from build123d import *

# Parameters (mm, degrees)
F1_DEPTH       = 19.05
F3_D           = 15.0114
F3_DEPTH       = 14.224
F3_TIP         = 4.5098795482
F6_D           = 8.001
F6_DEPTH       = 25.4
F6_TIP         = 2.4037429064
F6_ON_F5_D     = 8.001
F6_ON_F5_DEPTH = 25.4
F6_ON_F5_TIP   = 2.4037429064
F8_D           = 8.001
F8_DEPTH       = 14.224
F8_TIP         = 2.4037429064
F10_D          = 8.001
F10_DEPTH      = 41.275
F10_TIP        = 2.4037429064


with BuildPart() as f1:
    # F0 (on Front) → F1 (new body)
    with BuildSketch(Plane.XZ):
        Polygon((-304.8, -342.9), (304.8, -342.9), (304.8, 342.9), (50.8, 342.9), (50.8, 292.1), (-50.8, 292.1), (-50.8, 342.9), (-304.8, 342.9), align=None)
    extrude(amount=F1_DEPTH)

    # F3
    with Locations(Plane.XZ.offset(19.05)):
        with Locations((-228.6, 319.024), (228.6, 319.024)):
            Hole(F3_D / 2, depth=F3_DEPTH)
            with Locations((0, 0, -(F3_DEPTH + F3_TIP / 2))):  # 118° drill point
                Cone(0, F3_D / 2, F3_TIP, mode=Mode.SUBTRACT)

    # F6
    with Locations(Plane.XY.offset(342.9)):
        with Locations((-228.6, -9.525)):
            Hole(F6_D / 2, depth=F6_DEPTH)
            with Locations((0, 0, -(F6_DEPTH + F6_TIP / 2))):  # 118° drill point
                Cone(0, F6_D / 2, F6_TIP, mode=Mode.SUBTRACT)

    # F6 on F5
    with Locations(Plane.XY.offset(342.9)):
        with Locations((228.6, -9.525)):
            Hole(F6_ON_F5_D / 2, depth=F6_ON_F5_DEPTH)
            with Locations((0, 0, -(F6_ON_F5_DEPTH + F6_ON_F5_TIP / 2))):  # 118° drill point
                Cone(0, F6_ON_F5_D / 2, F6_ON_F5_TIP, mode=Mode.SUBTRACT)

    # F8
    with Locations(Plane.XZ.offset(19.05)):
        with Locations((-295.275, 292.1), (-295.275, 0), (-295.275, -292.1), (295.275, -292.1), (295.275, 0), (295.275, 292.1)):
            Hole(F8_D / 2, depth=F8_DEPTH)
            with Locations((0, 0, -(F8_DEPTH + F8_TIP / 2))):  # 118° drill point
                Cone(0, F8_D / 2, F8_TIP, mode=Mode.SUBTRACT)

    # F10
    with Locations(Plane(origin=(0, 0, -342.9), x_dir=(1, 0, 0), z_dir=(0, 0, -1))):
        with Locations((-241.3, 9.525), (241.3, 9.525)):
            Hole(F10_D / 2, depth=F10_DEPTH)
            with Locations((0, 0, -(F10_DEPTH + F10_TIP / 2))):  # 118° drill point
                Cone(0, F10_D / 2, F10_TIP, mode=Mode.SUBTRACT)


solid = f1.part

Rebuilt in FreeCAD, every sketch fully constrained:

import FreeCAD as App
import Part
import Sketcher
from FreeCAD import Vector
Q = App.Units.Quantity


def add_polygon(sketch, points):
    """Adds a closed chain of lines whose ends are joined by coincident constraints."""
    first, n = sketch.GeometryCount, len(points)
    for a, b in zip(points, points[1:] + points[:1]):
        sketch.addGeometry(Part.LineSegment(App.Vector(*a, 0), App.Vector(*b, 0)), False)
    for i in range(n):
        sketch.addConstraint(Sketcher.Constraint("Coincident", first + i, 2, first + (i + 1) % n, 1))

doc = App.newDocument("Part")
body = doc.addObject("PartDesign::Body", "Body")

sketch1 = doc.addObject("Sketcher::SketchObject", "Sketch")
body.addObject(sketch1)
sketch1.AttachmentSupport = (doc.XZ_Plane, [""])
sketch1.MapMode = "FlatFace"
add_polygon(sketch1, [(-305, -343), (305, -343), (305, 343), (51, 343), (51, 292), (-51, 292), (-51, 343), (-305, 343)])
sketch1.addConstraint([
    Sketcher.Constraint("Horizontal", 0),
    Sketcher.Constraint("Vertical", 1),
    Sketcher.Constraint("Horizontal", 2),
    Sketcher.Constraint("Vertical", 3),
    Sketcher.Constraint("Horizontal", 4),
    Sketcher.Constraint("Vertical", 5),
    Sketcher.Constraint("Horizontal", 6),
    Sketcher.Constraint("Vertical", 7),
    Sketcher.Constraint("Symmetric", 0, 2, 6, 2, -1, 1),
    Sketcher.Constraint("Symmetric", 2, 2, 5, 2, -2),
    Sketcher.Constraint("DistanceX", 0, 1, 0, 2, Q("24 in")),
    Sketcher.Constraint("DistanceX", 2, 2, 2, 1, Q("10 in")),
    Sketcher.Constraint("DistanceY", 1, 1, 1, 2, Q("27 in")),
    Sketcher.Constraint("DistanceY", 3, 2, 3, 1, Q("2 in")),
])
pad1 = doc.addObject("PartDesign::Pad", "Pad")
body.addObject(pad1)
pad1.Profile = sketch1
pad1.Length = Q("0.75 in")

sketch2 = doc.addObject("Sketcher::SketchObject", "Sketch001")
body.addObject(sketch2)
sketch2.AttachmentSupport = (doc.XZ_Plane, [""])
sketch2.MapMode = "FlatFace"
sketch2.AttachmentOffset = App.Placement(Vector(0, 0, 0.75 * 25.4), App.Rotation())
sketch2.addGeometry([
    Part.Circle(Vector(-229, 319, 0), Vector(0, 0, 1), 8),
    Part.Circle(Vector(229, 319, 0), Vector(0, 0, 1), 8),
], False)
sketch2.addConstraint([
    Sketcher.Constraint("Equal", 0, 1),
    Sketcher.Constraint("Symmetric", 0, 3, 1, 3, -2),
    Sketcher.Constraint("Diameter", 0, Q("0.591 in")),
    Sketcher.Constraint("DistanceX", 0, 3, -1, 1, Q("9 in")),
    Sketcher.Constraint("DistanceY", -1, 1, 0, 3, Q("12.56 in")),
])
doc.recompute()
hole = doc.addObject("PartDesign::Hole", "Hole")
body.addObject(hole)
hole.Profile = sketch2
hole.ThreadType = "None"
hole.Diameter = Q("0.591 in")
hole.DepthType = "Dimension"
hole.Depth = Q("0.56 in")
hole.DrillPoint = "Angled"
hole.DrillPointAngle = 118

sketch3 = doc.addObject("Sketcher::SketchObject", "Sketch002")
body.addObject(sketch3)
sketch3.AttachmentSupport = (doc.XY_Plane, [""])
sketch3.MapMode = "FlatFace"
sketch3.AttachmentOffset = App.Placement(Vector(0, 0, 13.5 * 25.4), App.Rotation())
sketch3.addGeometry(Part.Circle(Vector(-228.6, -9.5, 0), Vector(0, 0, 1), 4), False)
sketch3.addConstraint([
    Sketcher.Constraint("Diameter", 0, Q("0.315 in")),
    Sketcher.Constraint("DistanceX", 0, 3, -1, 1, Q("9 in")),
    Sketcher.Constraint("DistanceY", 0, 3, -1, 1, Q("0.375 in")),
])
doc.recompute()
hole2 = doc.addObject("PartDesign::Hole", "Hole001")
body.addObject(hole2)
hole2.Profile = sketch3
hole2.ThreadType = "None"
hole2.Diameter = Q("0.315 in")
hole2.DepthType = "Dimension"
hole2.Depth = Q("1 in")
hole2.DrillPoint = "Angled"
hole2.DrillPointAngle = 118

sketch4 = doc.addObject("Sketcher::SketchObject", "Sketch003")
body.addObject(sketch4)
sketch4.AttachmentSupport = (doc.XY_Plane, [""])
sketch4.MapMode = "FlatFace"
sketch4.AttachmentOffset = App.Placement(Vector(0, 0, 13.5 * 25.4), App.Rotation())
sketch4.addGeometry(Part.Circle(Vector(228.6, -9.5, 0), Vector(0, 0, 1), 4), False)
sketch4.addConstraint([
    Sketcher.Constraint("Diameter", 0, Q("0.315 in")),
    Sketcher.Constraint("DistanceX", -1, 1, 0, 3, Q("9 in")),
    Sketcher.Constraint("DistanceY", 0, 3, -1, 1, Q("0.375 in")),
])
doc.recompute()
hole3 = doc.addObject("PartDesign::Hole", "Hole002")
body.addObject(hole3)
hole3.Profile = sketch4
hole3.ThreadType = "None"
hole3.Diameter = Q("0.315 in")
hole3.DepthType = "Dimension"
hole3.Depth = Q("1 in")
hole3.DrillPoint = "Angled"
hole3.DrillPointAngle = 118

sketch5 = doc.addObject("Sketcher::SketchObject", "Sketch004")
body.addObject(sketch5)
sketch5.AttachmentSupport = (doc.XZ_Plane, [""])
sketch5.MapMode = "FlatFace"
sketch5.AttachmentOffset = App.Placement(Vector(0, 0, 0.75 * 25.4), App.Rotation())
sketch5.addGeometry([
    Part.Circle(Vector(-295.3, 292.1, 0), Vector(0, 0, 1), 4),
    Part.Circle(Vector(-295.3, 0, 0), Vector(0, 0, 1), 4),
    Part.Circle(Vector(-295.3, -292.1, 0), Vector(0, 0, 1), 4),
    Part.Circle(Vector(295.3, -292.1, 0), Vector(0, 0, 1), 4),
    Part.Circle(Vector(295.3, 0, 0), Vector(0, 0, 1), 4),
    Part.Circle(Vector(295.3, 292.1, 0), Vector(0, 0, 1), 4),
], False)
sketch5.addConstraint([
    Sketcher.Constraint("Equal", 0, 1),
    Sketcher.Constraint("Equal", 1, 2),
    Sketcher.Constraint("Equal", 2, 3),
    Sketcher.Constraint("Equal", 3, 4),
    Sketcher.Constraint("Equal", 4, 5),
    Sketcher.Constraint("Symmetric", 0, 3, 3, 3, -1, 1),
    Sketcher.Constraint("Symmetric", 1, 3, 4, 3, -1, 1),
    Sketcher.Constraint("Symmetric", 2, 3, 5, 3, -1, 1),
    Sketcher.Constraint("Symmetric", 2, 3, 3, 3, -2),
    Sketcher.Constraint("PointOnObject", 1, 3, -1),
    Sketcher.Constraint("Vertical", 0, 3, 1, 3),
    Sketcher.Constraint("Diameter", 0, Q("0.315 in")),
    Sketcher.Constraint("DistanceY", 2, 3, 0, 3, Q("23 in")),
    Sketcher.Constraint("DistanceX", 2, 3, 3, 3, Q("23.25 in")),
])
doc.recompute()
hole4 = doc.addObject("PartDesign::Hole", "Hole003")
body.addObject(hole4)
hole4.Profile = sketch5
hole4.ThreadType = "None"
hole4.Diameter = Q("0.315 in")
hole4.DepthType = "Dimension"
hole4.Depth = Q("0.56 in")
hole4.DrillPoint = "Angled"
hole4.DrillPointAngle = 118

sketch6 = doc.addObject("Sketcher::SketchObject", "Sketch005")
body.addObject(sketch6)
sketch6.AttachmentSupport = (doc.XY_Plane, [""])
sketch6.MapMode = "FlatFace"
sketch6.AttachmentOffset = App.Placement(Vector(0, 0, -13.5 * 25.4), App.Rotation())
sketch6.addGeometry([
    Part.Circle(Vector(-241.3, -9.5, 0), Vector(0, 0, 1), 4),
    Part.Circle(Vector(241.3, -9.5, 0), Vector(0, 0, 1), 4),
], False)
sketch6.addConstraint([
    Sketcher.Constraint("Equal", 0, 1),
    Sketcher.Constraint("Symmetric", 0, 3, 1, 3, -2),
    Sketcher.Constraint("Diameter", 0, Q("0.315 in")),
    Sketcher.Constraint("DistanceX", 0, 3, 1, 3, Q("19 in")),
    Sketcher.Constraint("DistanceY", 0, 3, -1, 1, Q("0.375 in")),
])
doc.recompute()
hole5 = doc.addObject("PartDesign::Hole", "Hole004")
body.addObject(hole5)
hole5.Profile = sketch6
hole5.ThreadType = "None"
hole5.Diameter = Q("0.315 in")
hole5.DepthType = "Dimension"
hole5.Depth = Q("1.625 in")
hole5.DrillPoint = "Angled"
hole5.DrillPointAngle = 118
hole5.Reversed = True

doc.recompute()
